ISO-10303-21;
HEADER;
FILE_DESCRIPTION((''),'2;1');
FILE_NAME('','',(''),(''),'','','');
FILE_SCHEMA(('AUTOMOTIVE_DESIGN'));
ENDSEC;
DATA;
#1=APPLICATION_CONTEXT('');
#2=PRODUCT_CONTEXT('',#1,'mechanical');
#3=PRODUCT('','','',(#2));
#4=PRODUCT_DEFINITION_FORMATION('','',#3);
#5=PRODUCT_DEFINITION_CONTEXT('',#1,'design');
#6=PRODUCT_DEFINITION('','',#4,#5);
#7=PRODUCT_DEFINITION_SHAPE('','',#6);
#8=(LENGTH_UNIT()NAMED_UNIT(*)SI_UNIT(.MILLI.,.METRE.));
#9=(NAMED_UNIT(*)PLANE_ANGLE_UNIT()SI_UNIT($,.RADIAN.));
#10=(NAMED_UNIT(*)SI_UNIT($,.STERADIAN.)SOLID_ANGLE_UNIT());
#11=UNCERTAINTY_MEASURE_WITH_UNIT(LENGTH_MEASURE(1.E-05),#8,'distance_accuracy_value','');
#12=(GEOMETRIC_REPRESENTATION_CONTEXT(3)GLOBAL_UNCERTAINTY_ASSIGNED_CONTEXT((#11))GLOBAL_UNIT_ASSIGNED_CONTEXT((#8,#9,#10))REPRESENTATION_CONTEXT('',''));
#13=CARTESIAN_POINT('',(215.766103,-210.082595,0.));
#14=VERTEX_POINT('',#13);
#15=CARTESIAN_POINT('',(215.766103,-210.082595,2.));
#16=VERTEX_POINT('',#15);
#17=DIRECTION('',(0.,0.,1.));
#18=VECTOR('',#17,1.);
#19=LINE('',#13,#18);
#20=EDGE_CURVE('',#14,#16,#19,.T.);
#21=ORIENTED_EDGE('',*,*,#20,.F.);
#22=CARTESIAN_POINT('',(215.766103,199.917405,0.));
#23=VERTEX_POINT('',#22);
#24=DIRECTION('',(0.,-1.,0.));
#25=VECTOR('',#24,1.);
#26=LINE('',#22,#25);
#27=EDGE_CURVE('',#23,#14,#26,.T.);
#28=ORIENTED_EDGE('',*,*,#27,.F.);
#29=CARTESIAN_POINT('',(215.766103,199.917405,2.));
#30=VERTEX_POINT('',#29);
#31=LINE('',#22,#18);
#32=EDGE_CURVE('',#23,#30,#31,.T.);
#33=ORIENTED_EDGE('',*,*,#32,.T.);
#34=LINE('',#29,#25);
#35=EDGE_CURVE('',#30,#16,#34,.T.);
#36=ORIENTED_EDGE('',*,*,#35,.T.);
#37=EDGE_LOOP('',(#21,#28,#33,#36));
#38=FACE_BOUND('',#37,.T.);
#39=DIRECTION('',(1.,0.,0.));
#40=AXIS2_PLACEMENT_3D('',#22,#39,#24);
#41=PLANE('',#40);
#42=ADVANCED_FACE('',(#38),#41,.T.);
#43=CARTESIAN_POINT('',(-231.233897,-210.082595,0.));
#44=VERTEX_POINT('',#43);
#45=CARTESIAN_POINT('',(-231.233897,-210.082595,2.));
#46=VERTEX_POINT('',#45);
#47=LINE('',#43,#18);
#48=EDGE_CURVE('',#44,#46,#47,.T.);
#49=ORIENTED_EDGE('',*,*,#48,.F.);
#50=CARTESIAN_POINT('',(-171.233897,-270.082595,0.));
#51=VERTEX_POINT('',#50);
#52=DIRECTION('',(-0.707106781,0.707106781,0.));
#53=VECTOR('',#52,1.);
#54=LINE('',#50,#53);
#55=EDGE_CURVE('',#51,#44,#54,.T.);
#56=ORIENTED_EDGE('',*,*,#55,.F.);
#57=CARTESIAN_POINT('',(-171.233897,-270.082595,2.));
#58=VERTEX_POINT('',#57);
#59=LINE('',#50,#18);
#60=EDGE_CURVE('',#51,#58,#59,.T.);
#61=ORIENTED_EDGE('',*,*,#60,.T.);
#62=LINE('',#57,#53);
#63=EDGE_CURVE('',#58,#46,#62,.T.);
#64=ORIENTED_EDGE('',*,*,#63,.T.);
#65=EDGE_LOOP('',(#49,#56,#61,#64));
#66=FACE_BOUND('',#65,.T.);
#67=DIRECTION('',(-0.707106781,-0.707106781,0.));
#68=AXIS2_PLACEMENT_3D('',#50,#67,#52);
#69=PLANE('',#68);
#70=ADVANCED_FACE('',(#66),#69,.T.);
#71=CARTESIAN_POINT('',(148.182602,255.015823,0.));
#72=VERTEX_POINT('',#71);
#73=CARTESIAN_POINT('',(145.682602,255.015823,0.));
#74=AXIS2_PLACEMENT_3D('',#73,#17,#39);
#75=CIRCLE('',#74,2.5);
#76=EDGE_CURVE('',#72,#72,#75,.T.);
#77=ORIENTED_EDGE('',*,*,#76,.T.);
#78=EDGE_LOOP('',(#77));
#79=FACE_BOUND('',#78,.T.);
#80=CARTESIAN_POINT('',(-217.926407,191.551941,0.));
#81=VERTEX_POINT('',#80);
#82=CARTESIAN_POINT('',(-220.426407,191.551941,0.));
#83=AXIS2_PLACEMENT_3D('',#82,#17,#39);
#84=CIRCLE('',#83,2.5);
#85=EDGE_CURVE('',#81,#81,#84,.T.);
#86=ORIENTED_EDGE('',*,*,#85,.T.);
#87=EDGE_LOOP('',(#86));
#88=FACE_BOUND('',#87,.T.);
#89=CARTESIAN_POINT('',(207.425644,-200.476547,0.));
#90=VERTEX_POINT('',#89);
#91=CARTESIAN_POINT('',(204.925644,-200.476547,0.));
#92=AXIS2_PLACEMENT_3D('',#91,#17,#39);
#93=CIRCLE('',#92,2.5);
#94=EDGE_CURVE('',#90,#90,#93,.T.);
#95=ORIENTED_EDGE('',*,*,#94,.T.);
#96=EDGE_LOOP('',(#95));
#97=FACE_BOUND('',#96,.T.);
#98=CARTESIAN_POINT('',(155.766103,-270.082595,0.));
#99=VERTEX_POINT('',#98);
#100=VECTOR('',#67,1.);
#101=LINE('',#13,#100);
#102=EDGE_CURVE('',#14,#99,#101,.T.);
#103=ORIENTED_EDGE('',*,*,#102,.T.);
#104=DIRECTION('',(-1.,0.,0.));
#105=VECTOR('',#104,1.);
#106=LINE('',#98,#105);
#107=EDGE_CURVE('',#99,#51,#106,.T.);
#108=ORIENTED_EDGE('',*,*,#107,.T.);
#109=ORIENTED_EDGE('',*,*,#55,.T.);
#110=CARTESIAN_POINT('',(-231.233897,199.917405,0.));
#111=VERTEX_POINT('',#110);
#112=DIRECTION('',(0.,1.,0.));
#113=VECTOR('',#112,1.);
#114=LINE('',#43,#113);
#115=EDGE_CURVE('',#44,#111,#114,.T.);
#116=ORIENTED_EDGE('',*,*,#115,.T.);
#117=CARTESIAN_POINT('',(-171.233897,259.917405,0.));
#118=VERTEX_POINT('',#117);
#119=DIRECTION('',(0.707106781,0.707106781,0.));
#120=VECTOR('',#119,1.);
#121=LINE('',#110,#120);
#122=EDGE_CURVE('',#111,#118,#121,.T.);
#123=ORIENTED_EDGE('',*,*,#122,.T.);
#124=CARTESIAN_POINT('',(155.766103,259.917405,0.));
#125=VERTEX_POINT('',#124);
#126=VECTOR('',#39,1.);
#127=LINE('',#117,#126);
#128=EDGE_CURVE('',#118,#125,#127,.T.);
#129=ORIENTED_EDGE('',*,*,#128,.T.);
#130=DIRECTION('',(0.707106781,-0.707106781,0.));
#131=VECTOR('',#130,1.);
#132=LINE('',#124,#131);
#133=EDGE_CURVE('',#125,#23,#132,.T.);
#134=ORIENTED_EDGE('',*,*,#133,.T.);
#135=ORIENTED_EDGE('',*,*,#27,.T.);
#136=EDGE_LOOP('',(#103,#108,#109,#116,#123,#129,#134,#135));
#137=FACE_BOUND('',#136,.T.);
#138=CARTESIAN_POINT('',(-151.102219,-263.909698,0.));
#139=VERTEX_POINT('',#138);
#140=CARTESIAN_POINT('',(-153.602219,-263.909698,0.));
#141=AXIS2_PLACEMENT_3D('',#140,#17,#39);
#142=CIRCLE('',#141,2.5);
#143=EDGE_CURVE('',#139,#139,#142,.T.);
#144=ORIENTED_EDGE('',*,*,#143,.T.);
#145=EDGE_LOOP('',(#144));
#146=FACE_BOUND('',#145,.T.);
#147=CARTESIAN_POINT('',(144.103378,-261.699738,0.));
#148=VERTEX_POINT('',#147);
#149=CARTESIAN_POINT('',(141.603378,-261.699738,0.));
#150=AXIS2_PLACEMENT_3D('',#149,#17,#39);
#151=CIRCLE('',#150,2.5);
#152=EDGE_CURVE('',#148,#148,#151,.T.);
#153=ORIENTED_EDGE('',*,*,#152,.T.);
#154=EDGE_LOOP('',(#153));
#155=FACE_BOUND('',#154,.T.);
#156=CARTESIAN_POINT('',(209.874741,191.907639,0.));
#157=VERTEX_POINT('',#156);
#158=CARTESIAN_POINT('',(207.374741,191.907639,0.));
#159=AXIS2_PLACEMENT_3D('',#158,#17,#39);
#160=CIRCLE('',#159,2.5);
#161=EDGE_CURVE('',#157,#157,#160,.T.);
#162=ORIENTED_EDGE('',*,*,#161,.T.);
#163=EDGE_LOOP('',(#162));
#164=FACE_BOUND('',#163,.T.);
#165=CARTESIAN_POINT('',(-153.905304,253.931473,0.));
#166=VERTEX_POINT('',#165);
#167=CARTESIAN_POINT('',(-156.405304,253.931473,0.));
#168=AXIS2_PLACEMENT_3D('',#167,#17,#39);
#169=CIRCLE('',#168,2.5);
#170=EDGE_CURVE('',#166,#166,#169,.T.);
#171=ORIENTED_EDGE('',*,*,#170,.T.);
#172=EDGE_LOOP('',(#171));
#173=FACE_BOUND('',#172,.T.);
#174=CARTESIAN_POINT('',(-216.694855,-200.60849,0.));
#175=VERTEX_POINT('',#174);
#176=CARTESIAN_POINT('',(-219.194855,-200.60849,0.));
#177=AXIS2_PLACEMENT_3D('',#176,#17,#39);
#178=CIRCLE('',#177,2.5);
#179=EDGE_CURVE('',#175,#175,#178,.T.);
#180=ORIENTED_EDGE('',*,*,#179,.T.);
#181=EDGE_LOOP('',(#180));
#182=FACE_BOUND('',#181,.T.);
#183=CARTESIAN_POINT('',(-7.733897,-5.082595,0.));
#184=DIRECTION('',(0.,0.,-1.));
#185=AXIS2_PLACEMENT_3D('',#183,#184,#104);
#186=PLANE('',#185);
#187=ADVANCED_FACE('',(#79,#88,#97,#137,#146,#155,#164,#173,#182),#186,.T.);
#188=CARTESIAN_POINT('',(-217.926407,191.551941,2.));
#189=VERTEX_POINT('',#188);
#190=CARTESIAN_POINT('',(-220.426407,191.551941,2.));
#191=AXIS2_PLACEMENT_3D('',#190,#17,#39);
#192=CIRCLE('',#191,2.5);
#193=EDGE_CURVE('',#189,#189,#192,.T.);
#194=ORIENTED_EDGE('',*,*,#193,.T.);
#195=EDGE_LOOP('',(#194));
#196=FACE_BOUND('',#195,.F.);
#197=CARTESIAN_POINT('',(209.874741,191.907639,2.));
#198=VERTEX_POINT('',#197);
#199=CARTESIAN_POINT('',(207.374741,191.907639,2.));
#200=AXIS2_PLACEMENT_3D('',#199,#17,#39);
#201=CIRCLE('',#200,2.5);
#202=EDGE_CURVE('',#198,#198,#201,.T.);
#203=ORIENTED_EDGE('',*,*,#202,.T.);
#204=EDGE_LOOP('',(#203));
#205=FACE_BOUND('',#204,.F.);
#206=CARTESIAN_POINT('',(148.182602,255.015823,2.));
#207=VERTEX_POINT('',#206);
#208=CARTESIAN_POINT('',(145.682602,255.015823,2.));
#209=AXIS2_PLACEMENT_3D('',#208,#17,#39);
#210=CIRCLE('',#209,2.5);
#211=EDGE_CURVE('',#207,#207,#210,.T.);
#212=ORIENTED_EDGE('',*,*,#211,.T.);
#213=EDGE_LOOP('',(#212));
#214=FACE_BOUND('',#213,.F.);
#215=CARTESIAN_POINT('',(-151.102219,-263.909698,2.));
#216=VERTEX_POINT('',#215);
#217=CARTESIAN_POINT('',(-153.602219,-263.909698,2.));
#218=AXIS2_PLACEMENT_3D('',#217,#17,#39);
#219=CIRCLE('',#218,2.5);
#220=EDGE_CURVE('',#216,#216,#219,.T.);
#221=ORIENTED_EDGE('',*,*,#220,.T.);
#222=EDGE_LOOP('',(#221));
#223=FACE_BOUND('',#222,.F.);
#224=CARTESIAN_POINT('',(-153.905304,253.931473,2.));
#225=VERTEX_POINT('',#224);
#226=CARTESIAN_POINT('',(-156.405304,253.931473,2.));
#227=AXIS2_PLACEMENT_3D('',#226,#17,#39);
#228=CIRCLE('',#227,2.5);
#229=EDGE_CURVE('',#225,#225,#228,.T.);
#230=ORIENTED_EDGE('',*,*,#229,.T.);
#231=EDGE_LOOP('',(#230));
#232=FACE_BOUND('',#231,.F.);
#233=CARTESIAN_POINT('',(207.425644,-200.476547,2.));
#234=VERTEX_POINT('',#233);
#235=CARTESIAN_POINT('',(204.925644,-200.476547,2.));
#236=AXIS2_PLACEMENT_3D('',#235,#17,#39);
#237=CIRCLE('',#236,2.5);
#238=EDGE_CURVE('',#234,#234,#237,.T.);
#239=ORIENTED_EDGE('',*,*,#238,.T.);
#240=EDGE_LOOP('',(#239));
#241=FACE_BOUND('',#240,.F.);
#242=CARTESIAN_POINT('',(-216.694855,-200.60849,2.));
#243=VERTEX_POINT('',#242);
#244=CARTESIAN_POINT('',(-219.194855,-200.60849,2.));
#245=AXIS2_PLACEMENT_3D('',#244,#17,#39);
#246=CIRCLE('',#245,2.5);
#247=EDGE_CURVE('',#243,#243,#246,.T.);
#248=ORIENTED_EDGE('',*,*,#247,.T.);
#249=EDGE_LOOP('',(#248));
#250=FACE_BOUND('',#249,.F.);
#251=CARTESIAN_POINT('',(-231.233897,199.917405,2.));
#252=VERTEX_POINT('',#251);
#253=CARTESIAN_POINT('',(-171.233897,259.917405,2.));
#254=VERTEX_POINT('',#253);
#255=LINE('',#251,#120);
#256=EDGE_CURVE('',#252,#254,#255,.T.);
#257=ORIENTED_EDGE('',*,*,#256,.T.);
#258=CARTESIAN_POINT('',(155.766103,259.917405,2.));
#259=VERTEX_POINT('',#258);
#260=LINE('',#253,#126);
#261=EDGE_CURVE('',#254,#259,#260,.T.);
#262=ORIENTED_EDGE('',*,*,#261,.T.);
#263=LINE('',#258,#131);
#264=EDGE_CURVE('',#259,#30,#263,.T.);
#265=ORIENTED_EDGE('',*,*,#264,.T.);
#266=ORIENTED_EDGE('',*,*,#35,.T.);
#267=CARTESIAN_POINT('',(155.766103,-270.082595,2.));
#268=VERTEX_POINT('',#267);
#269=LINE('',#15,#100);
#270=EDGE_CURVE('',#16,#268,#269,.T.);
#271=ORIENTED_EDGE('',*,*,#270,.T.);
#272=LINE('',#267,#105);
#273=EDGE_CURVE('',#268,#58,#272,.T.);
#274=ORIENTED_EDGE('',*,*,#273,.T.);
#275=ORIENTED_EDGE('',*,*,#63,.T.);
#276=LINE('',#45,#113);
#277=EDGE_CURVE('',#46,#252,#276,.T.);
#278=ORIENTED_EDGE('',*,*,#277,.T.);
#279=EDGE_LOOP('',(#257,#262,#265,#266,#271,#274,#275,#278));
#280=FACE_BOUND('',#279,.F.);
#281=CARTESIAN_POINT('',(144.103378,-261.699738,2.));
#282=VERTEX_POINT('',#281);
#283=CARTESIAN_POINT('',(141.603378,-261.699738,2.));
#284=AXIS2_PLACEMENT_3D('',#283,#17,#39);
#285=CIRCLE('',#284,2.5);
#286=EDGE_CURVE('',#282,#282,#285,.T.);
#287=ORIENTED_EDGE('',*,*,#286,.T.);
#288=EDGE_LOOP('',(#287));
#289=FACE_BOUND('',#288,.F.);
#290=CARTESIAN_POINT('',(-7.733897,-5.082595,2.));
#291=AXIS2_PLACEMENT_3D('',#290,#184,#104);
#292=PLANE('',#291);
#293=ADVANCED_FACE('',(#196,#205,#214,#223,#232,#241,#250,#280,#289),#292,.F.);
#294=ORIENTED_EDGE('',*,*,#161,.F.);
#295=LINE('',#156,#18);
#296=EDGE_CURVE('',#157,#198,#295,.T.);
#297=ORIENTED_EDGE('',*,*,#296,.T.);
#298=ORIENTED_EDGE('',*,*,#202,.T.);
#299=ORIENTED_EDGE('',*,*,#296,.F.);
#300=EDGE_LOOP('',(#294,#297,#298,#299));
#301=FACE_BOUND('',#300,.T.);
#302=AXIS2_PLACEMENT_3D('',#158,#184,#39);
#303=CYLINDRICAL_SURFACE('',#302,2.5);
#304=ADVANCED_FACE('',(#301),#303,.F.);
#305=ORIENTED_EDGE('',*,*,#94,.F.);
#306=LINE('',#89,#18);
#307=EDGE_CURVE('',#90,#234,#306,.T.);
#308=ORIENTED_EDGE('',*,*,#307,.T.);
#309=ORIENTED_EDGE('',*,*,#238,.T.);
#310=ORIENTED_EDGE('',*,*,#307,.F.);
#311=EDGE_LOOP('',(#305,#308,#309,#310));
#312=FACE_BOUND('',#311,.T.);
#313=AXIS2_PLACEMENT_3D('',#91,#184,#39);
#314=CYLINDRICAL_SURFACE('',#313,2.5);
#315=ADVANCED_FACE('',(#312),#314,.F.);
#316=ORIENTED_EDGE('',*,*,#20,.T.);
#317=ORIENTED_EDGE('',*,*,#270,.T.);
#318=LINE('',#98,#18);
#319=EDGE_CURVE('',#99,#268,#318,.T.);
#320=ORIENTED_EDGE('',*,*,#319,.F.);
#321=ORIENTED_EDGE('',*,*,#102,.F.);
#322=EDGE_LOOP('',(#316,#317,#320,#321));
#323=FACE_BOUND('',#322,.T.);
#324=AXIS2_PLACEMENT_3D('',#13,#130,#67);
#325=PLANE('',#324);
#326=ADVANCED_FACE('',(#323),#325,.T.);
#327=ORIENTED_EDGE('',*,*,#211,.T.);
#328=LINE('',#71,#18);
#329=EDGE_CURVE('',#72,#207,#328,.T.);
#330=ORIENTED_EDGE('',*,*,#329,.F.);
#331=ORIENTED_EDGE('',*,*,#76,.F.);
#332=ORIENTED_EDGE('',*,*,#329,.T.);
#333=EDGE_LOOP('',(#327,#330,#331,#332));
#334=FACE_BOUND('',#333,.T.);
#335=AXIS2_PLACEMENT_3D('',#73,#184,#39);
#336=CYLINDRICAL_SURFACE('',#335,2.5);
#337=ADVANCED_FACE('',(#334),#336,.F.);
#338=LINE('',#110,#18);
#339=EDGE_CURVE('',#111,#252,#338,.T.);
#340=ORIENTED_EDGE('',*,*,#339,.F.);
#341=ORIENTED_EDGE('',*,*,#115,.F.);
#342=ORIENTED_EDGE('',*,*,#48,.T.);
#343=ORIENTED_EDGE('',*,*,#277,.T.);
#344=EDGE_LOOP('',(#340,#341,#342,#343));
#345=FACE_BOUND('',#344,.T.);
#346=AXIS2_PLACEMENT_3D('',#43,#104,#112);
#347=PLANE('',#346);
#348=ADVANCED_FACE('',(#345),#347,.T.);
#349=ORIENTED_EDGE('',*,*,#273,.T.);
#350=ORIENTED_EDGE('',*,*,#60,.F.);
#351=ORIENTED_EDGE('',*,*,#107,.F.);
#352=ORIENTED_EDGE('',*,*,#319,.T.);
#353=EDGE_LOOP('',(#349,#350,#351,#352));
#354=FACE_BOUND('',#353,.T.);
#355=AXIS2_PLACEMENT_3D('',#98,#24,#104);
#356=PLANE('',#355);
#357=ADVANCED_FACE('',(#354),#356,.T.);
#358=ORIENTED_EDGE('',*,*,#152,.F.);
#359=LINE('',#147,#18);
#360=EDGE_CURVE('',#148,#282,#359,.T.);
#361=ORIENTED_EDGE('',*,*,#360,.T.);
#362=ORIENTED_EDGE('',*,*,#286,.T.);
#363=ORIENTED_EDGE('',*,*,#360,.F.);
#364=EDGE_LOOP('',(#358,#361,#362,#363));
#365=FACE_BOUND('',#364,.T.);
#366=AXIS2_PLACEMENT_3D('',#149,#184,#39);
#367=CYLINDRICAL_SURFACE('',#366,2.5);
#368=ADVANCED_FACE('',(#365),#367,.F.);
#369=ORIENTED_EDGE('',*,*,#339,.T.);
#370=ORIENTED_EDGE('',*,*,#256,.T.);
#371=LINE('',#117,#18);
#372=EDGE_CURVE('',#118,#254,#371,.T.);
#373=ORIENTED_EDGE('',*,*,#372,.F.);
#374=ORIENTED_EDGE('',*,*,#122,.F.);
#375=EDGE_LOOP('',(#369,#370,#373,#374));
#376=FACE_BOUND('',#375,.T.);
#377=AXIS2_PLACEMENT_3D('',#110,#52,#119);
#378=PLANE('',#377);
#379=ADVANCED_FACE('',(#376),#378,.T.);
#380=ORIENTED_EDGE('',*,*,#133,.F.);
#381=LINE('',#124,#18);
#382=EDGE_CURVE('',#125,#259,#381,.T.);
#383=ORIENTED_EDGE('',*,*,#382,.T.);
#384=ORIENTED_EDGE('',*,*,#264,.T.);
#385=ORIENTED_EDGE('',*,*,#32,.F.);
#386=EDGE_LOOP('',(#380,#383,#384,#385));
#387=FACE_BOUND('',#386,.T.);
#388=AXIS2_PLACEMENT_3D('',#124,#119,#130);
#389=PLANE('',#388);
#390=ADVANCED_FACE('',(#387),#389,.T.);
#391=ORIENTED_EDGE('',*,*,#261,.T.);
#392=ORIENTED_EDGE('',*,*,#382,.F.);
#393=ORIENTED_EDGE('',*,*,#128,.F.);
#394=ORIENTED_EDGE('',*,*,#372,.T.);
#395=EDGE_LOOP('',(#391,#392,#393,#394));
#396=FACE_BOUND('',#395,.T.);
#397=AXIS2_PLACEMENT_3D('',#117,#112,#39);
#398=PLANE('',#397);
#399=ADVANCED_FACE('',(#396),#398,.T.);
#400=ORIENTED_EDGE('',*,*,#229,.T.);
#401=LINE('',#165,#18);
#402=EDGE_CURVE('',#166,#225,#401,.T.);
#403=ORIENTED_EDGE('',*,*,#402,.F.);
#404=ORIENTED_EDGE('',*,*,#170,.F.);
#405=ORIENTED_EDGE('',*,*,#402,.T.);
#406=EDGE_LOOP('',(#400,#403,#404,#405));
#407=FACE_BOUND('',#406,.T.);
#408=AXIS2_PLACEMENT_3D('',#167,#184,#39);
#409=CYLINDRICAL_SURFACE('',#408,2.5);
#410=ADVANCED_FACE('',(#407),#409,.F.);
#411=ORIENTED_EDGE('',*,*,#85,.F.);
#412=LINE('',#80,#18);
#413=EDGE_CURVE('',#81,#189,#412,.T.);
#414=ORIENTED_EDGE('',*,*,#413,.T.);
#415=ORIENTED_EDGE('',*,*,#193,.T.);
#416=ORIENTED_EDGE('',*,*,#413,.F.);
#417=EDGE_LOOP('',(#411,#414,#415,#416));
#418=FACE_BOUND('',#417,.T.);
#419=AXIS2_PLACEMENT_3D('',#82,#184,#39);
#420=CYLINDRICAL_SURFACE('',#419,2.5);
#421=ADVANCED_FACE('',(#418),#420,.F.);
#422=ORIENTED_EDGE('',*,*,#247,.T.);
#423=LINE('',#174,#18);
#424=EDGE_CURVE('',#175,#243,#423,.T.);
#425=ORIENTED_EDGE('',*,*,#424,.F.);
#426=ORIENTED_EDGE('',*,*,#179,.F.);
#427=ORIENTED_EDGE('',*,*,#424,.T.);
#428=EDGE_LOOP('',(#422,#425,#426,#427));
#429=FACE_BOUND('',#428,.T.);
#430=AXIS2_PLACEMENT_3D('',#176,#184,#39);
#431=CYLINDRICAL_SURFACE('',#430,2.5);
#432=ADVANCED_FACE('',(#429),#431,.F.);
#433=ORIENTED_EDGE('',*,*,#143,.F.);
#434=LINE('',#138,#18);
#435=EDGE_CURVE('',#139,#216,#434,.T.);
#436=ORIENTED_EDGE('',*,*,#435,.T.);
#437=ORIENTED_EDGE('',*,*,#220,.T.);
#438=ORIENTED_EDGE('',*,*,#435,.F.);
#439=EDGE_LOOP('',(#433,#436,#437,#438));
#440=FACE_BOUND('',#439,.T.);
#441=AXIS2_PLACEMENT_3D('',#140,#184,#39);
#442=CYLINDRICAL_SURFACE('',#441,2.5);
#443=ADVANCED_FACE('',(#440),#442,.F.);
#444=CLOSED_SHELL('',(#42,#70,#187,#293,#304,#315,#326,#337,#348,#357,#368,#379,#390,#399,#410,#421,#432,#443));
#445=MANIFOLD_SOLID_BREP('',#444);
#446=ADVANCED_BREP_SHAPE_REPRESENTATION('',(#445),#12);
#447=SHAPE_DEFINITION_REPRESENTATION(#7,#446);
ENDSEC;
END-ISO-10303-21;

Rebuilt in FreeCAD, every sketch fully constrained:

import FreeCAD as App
import Part
import Sketcher

V = App.Vector

doc = App.newDocument("Part")
body = doc.addObject("PartDesign::Body", "Body")

# Sketch on XY plane
sketch1 = body.newObject("Sketcher::SketchObject", "Sketch")
sketch1.AttachmentSupport = (doc.getObject("XY_Plane"), [""])
sketch1.MapMode = "FlatFace"
sketch1.addGeometry([
    Part.LineSegment(V(155.766103, 259.917405, 0), V(-171.233897, 259.917405, 0)),  # 0
    Part.LineSegment(V(-171.233897, 259.917405, 0), V(-231.233897, 199.917405, 0)),  # 1
    Part.LineSegment(V(-231.233897, 199.917405, 0), V(-231.233897, -210.082595, 0)),  # 2
    Part.LineSegment(V(-231.233897, -210.082595, 0), V(-171.233897, -270.082595, 0)),  # 3
    Part.LineSegment(V(-171.233897, -270.082595, 0), V(155.766103, -270.082595, 0)),  # 4
    Part.LineSegment(V(155.766103, -270.082595, 0), V(215.766103, -210.082595, 0)),  # 5
    Part.LineSegment(V(215.766103, -210.082595, 0), V(215.766103, 199.917405, 0)),  # 6
    Part.LineSegment(V(215.766103, 199.917405, 0), V(155.766103, 259.917405, 0)),  # 7
    Part.Circle(V(141.603378, -261.699738, 0), V(0, 0, 1), 2.5),  # 8
    Part.Circle(V(204.925644, -200.476547, 0), V(0, 0, 1), 2.5),  # 9
    Part.Circle(V(-153.602219, -263.909698, 0), V(0, 0, 1), 2.5),  # 10
    Part.Circle(V(-219.194855, -200.60849, 0), V(0, 0, 1), 2.5),  # 11
    Part.Circle(V(207.374741, 191.907639, 0), V(0, 0, 1), 2.5),  # 12
    Part.Circle(V(145.682602, 255.015823, 0), V(0, 0, 1), 2.5),  # 13
    Part.Circle(V(-220.426407, 191.551941, 0), V(0, 0, 1), 2.5),  # 14
    Part.Circle(V(-156.405304, 253.931473, 0), V(0, 0, 1), 2.5),  # 15
], False)
sketch1.addConstraint([
    Sketcher.Constraint("Coincident", 0, 2, 1, 1),
    Sketcher.Constraint("Coincident", 1, 2, 2, 1),
    Sketcher.Constraint("Coincident", 2, 2, 3, 1),
    Sketcher.Constraint("Coincident", 3, 2, 4, 1),
    Sketcher.Constraint("Coincident", 4, 2, 5, 1),
    Sketcher.Constraint("Coincident", 5, 2, 6, 1),
    Sketcher.Constraint("Coincident", 6, 2, 7, 1),
    Sketcher.Constraint("Coincident", 7, 2, 0, 1),
    Sketcher.Constraint("Horizontal", 0),
    Sketcher.Constraint("Vertical", 2),
    Sketcher.Constraint("Horizontal", 4),
    Sketcher.Constraint("Vertical", 6),
    Sketcher.Constraint("Equal", 8, 9),
    Sketcher.Constraint("Equal", 9, 10),
    Sketcher.Constraint("Equal", 10, 11),
    Sketcher.Constraint("Equal", 11, 12),
    Sketcher.Constraint("Equal", 12, 13),
    Sketcher.Constraint("Equal", 13, 14),
    Sketcher.Constraint("Equal", 14, 15),
    Sketcher.Constraint("Perpendicular", 1, 3),
    Sketcher.Constraint("Perpendicular", 3, 5),
    Sketcher.Constraint("Perpendicular", 5, 7),
    Sketcher.Constraint("Horizontal", 2, 2, 5, 2),
    Sketcher.Constraint("Horizontal", 1, 2, 6, 2),
    Sketcher.Constraint("Vertical", 0, 2, 3, 2),
    Sketcher.Constraint("Vertical", 4, 2, 7, 2),
    Sketcher.Constraint("Diameter", 8, 5.0),
    Sketcher.Constraint("DistanceX", 0, 2, 0, 1, 327.0),
    Sketcher.Constraint("DistanceY", 2, 2, 2, 1, 410.0),
    Sketcher.Constraint("DistanceX", 1, 2, 0, 2, 60.0),
    Sketcher.Constraint("DistanceY", 10, 3, -1, 1, 263.909698),
    Sketcher.Constraint("DistanceX", -1, 1, 13, 3, 145.682602),
    Sketcher.Constraint("DistanceX", 11, 3, 9, 3, 424.120499),
    Sketcher.Constraint("DistanceX", 0, 2, 13, 3, 316.916499),
    Sketcher.Constraint("DistanceX", -1, 1, 8, 3, 141.603378),
    Sketcher.Constraint("DistanceY", 8, 3, -1, 1, 261.699738),
    Sketcher.Constraint("DistanceX", 10, 3, -1, 1, 153.602219),
    Sketcher.Constraint("DistanceY", 11, 3, -1, 1, 200.60849),
    Sketcher.Constraint("DistanceX", -1, 1, 12, 3, 207.374741),
    Sketcher.Constraint("DistanceY", -1, 1, 12, 3, 191.907639),
    Sketcher.Constraint("DistanceY", -1, 1, 14, 3, 191.551941),
    Sketcher.Constraint("DistanceY", 8, 3, 9, 3, 61.223191),
    Sketcher.Constraint("DistanceY", 9, 3, 13, 3, 455.49237),
    Sketcher.Constraint("DistanceX", 14, 3, 13, 3, 366.109009),
    Sketcher.Constraint("DistanceX", 14, 3, 9, 3, 425.352051),
    Sketcher.Constraint("DistanceY", 15, 3, 13, 3, 1.08435),
    Sketcher.Constraint("DistanceX", 11, 3, 15, 3, 62.789551),
    Sketcher.Constraint("DistanceY", 15, 3, 0, 2, 5.985932),
])
pad1 = body.newObject("PartDesign::Pad", "Pad")
pad1.Profile = sketch1
pad1.Length = 2

doc.recompute()
